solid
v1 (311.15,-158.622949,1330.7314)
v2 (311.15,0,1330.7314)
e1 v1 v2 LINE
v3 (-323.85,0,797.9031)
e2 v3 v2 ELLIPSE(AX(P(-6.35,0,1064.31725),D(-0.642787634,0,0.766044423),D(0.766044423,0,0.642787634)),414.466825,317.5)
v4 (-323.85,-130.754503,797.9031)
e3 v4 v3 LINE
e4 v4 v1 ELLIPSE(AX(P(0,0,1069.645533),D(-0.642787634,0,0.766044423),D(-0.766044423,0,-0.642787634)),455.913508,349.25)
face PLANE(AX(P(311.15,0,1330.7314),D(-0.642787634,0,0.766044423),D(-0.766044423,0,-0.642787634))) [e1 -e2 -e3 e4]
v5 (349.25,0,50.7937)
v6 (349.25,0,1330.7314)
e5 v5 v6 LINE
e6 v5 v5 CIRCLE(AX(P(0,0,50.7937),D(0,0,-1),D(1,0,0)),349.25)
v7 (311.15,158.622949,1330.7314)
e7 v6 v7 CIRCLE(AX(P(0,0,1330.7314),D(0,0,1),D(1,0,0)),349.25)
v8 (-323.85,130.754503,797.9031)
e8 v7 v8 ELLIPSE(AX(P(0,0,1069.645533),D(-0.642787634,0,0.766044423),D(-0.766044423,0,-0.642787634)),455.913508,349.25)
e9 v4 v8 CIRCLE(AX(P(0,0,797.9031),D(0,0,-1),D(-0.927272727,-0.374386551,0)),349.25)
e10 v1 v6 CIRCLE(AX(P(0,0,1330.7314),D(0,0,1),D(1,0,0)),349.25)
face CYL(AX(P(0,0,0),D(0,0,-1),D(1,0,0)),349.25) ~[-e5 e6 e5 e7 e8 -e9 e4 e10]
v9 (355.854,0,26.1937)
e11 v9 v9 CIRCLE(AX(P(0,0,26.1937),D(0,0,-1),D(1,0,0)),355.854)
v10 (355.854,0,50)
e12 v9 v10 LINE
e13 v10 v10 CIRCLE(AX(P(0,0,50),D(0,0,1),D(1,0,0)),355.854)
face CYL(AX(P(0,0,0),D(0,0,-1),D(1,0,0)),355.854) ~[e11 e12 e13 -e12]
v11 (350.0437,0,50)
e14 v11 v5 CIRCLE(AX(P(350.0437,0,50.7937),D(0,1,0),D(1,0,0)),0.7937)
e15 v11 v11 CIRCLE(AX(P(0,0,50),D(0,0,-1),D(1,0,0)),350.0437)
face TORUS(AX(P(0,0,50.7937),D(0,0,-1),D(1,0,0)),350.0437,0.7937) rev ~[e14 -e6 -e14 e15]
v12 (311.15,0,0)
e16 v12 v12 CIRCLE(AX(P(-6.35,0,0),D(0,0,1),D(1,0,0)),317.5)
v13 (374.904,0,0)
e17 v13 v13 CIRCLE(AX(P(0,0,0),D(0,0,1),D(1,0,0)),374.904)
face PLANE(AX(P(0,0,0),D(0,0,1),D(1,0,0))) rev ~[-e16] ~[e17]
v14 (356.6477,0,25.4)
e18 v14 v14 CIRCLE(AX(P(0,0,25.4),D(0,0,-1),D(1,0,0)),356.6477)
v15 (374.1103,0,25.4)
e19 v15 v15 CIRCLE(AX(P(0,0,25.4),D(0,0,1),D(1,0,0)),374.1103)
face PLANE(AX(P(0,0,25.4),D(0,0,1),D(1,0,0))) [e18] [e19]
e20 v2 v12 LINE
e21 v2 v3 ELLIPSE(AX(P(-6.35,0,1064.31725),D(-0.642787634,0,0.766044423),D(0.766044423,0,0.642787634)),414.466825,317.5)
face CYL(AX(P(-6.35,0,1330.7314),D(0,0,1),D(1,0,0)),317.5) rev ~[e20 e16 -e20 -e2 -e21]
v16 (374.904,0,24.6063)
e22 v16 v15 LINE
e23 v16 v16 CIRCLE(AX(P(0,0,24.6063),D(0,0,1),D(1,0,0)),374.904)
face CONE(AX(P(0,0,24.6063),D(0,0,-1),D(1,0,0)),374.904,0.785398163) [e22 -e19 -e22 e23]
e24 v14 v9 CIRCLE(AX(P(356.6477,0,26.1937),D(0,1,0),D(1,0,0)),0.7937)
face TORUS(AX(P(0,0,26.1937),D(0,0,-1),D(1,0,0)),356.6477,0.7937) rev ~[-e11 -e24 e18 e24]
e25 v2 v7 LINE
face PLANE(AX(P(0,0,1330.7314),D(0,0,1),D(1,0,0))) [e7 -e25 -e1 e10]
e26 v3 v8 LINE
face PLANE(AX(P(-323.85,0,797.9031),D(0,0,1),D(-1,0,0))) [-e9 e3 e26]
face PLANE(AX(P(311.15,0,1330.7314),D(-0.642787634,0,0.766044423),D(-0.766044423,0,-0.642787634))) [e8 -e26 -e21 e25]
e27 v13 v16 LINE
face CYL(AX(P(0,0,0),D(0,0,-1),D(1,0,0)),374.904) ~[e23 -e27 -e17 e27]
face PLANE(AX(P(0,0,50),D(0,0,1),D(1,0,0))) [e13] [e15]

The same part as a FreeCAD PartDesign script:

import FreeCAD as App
import Part
import Sketcher
Q = App.Units.Quantity


def edges_at(feature, points):
    """Names of the edges that pass closest to the given points."""
    edges = feature.Shape.Edges
    near = lambda p: min(range(len(edges)), key=lambda i: edges[i].distToShape(Part.Vertex(*p))[0])
    return sorted({f"Edge{near(p) + 1}" for p in points})

doc = App.newDocument("Part")
params = doc.addObject("Spreadsheet::Sheet", "Params")
for row, (alias, value) in enumerate([
    ("sketch1_diameter", "29.52 in"),
    ("pad1_length", "1 in"),
    ("sketch2_diameter", "28.02 in"),
    ("pad2_length", "1.9685039 in"),
    ("sketch3_diameter", "27.5 in"),
    ("pad3_length", "52.391 in"),
    ("sketch4_diameter", "25 in"),
    ("chamfer_size", "0.031248 in"),
    ("fillet_radius", "0.031248 in"),
    ("fillet2_radius", "0.031248 in"),
    ("sketch5_width", "26 in"),
    ("sketch5_width2", "1 in"),
], start=1):
    params.set(f"A{row}", alias)
    params.set(f"B{row}", "=" + value)
    params.setAlias(f"B{row}", alias)

body = doc.addObject("PartDesign::Body", "Body")

sketch1 = body.newObject("Sketcher::SketchObject", "Sketch")
sketch1.AttachmentSupport = (doc.getObject("XY_Plane"), [""])
sketch1.MapMode = "FlatFace"
sketch1.addGeometry(Part.Circle(App.Vector(0, 0, 0), App.Vector(0, 0, 1), 375), False)
sketch1.addConstraint([
    Sketcher.Constraint("Coincident", 0, 3, -1, 1),
    Sketcher.Constraint("Diameter", 0, Q("29.52 in")),
])
sketch1.setExpression("Constraints[1]", "Params.sketch1_diameter")
pad1 = body.newObject("PartDesign::Pad", "Pad")
pad1.Profile = sketch1
pad1.setExpression("Length", "Params.pad1_length")

sketch2 = body.newObject("Sketcher::SketchObject", "Sketch001")
sketch2.AttachmentSupport = (doc.getObject("XY_Plane"), [""])
sketch2.MapMode = "FlatFace"
sketch2.addGeometry(Part.Circle(App.Vector(0, 0, 0), App.Vector(0, 0, 1), 356), False)
sketch2.addConstraint([
    Sketcher.Constraint("Coincident", 0, 3, -1, 1),
    Sketcher.Constraint("Diameter", 0, Q("28.02 in")),
])
sketch2.setExpression("Constraints[1]", "Params.sketch2_diameter")
pad2 = body.newObject("PartDesign::Pad", "Pad001")
pad2.Profile = sketch2
pad2.setExpression("Length", "Params.pad2_length")

sketch3 = body.newObject("Sketcher::SketchObject", "Sketch002")
sketch3.AttachmentSupport = (doc.getObject("XY_Plane"), [""])
sketch3.MapMode = "FlatFace"
sketch3.addGeometry(Part.Circle(App.Vector(0, 0, 0), App.Vector(0, 0, 1), 349), False)
sketch3.addConstraint([
    Sketcher.Constraint("Coincident", 0, 3, -1, 1),
    Sketcher.Constraint("Diameter", 0, Q("27.5 in")),
])
sketch3.setExpression("Constraints[1]", "Params.sketch3_diameter")
pad3 = body.newObject("PartDesign::Pad", "Pad002")
pad3.Profile = sketch3
pad3.setExpression("Length", "Params.pad3_length")

sketch4 = body.newObject("Sketcher::SketchObject", "Sketch003")
sketch4.AttachmentSupport = (doc.getObject("XY_Plane"), [""])
sketch4.MapMode = "FlatFace"
sketch4.AttachmentOffset = App.Placement(App.Vector(0, 0, 52.391 * 25.4), App.Rotation())
sketch4.addGeometry(Part.Circle(App.Vector(-6, 0, 0), App.Vector(0, 0, 1), 318), False)
sketch4.addConstraint([
    Sketcher.Constraint("PointOnObject", 0, 3, -1),
    Sketcher.Constraint("Diameter", 0, Q("25 in")),
    Sketcher.Constraint("DistanceX", 0, 3, -1, 1, Q("0.25 in")),
])
sketch4.setExpression("Constraints[1]", "Params.sketch4_diameter")
pocket1 = body.newObject("PartDesign::Pocket", "Pocket")
pocket1.Profile = sketch4
pocket1.Type = "ThroughAll"
doc.recompute()

chamfer = body.newObject("PartDesign::Chamfer", "Chamfer")
chamfer.Base = (pocket1, edges_at(pocket1, [(-374.904, 0, 25.4)]))
chamfer.setExpression("Size", "Params.chamfer_size")
doc.recompute()

fillet = body.newObject("PartDesign::Fillet", "Fillet")
fillet.Base = (chamfer, edges_at(chamfer, [(-355.854, 0, 25.4)]))
fillet.setExpression("Radius", "Params.fillet_radius")
doc.recompute()

fillet2 = body.newObject("PartDesign::Fillet", "Fillet001")
fillet2.Base = (fillet, edges_at(fillet, [(-349.25, 0, 50)]))
fillet2.setExpression("Radius", "Params.fillet2_radius")

sketch5 = body.newObject("Sketcher::SketchObject", "Sketch004")
sketch5.AttachmentSupport = (doc.getObject("XZ_Plane"), [""])
sketch5.MapMode = "FlatFace"
sketch5.addGeometry([
    Part.LineSegment(App.Vector(-349, 1331, 0), App.Vector(311, 1331, 0)),
    Part.LineSegment(App.Vector(311, 1331, 0), App.Vector(-324, 798, 0)),
    Part.LineSegment(App.Vector(-324, 798, 0), App.Vector(-349, 798, 0)),
    Part.LineSegment(App.Vector(-349, 798, 0), App.Vector(-349, 1331, 0)),
], False)
sketch5.addConstraint([
    Sketcher.Constraint("Coincident", 0, 2, 1, 1),
    Sketcher.Constraint("Coincident", 1, 2, 2, 1),
    Sketcher.Constraint("Coincident", 2, 2, 3, 1),
    Sketcher.Constraint("Coincident", 3, 2, 0, 1),
    Sketcher.Constraint("Horizontal", 0),
    Sketcher.Constraint("Horizontal", 2),
    Sketcher.Constraint("Vertical", 3),
    Sketcher.Constraint("DistanceX", 0, 1, 0, 2, Q("26 in")),
    Sketcher.Constraint("DistanceX", 2, 2, 2, 1, Q("1 in")),
    Sketcher.Constraint("Angle", 1, Q("-140 deg")),
    Sketcher.Constraint("DistanceX", -1, 1, 0, 2, Q("12.25 in")),
    Sketcher.Constraint("DistanceY", -1, 1, 0, 2, Q("52.391 in")),
])
sketch5.setExpression("Constraints[7]", "Params.sketch5_width")
sketch5.setExpression("Constraints[8]", "Params.sketch5_width2")
pocket2 = body.newObject("PartDesign::Pocket", "Pocket001")
pocket2.Profile = sketch5
pocket2.Type = "ThroughAll"
pocket2.Midplane = True

doc.recompute()
